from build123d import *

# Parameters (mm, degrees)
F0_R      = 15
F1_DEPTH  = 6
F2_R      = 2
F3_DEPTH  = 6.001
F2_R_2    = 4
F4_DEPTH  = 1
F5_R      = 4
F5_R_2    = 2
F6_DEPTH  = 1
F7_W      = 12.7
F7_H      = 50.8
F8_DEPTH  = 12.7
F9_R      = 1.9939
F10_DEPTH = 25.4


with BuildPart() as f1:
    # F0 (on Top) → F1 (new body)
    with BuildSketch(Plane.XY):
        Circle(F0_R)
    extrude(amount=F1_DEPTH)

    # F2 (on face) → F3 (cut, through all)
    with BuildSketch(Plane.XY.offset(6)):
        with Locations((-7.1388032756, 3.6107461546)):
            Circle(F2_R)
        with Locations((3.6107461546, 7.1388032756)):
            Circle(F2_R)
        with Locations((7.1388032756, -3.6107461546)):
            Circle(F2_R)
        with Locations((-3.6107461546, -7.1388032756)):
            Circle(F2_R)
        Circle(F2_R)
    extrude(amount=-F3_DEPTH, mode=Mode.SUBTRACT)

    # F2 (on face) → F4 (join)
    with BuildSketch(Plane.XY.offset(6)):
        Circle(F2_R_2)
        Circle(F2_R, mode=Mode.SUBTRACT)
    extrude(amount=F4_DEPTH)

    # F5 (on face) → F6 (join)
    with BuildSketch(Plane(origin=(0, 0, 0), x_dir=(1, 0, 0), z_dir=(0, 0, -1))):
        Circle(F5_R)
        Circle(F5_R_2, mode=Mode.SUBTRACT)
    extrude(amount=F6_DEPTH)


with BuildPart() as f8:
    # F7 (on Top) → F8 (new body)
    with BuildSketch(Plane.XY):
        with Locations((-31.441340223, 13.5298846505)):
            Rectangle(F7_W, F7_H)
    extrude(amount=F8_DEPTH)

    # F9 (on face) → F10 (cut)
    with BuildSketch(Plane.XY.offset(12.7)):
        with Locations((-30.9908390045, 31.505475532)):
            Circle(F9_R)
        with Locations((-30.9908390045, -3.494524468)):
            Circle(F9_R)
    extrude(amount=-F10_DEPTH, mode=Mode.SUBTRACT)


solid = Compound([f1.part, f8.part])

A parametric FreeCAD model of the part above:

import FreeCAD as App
import Part
import Sketcher

V = App.Vector
Q = App.Units.Quantity


def add_polygon(sketch, points):
    """Adds a closed chain of lines whose ends are joined by coincident constraints."""
    first, n = sketch.GeometryCount, len(points)
    for a, b in zip(points, points[1:] + points[:1]):
        sketch.addGeometry(Part.LineSegment(App.Vector(*a, 0), App.Vector(*b, 0)), False)
    for i in range(n):
        sketch.addConstraint(Sketcher.Constraint("Coincident", first + i, 2, first + (i + 1) % n, 1))

doc = App.newDocument("Part")
body = doc.addObject("PartDesign::Body", "Body")

sketch1 = body.newObject("Sketcher::SketchObject", "Sketch")
sketch1.AttachmentSupport = (doc.getObject("XY_Plane"), [""])
sketch1.MapMode = "FlatFace"
sketch1.addGeometry(Part.Circle(V(0, 0, 0), V(0, 0, 1), 15), False)
sketch1.addConstraint(Sketcher.Constraint("Coincident", 0, 3, -1, 1))
sketch1.addConstraint(Sketcher.Constraint("Diameter", 0, Q("30 mm")))
pad1 = body.newObject("PartDesign::Pad", "Pad")
pad1.Profile = sketch1
pad1.Length = 6

sketch2 = body.newObject("Sketcher::SketchObject", "Sketch001")
sketch2.AttachmentSupport = (doc.getObject("XY_Plane"), [""])
sketch2.MapMode = "FlatFace"
sketch2.AttachmentOffset = App.Placement(V(0, 0, 6), App.Rotation())
sketch2.addGeometry(Part.Circle(V(-7.1, 3.6, 0), V(0, 0, 1), 2), False)
sketch2.addGeometry(Part.Circle(V(3.6, 7.1, 0), V(0, 0, 1), 2), False)
sketch2.addGeometry(Part.Circle(V(7.1, -3.6, 0), V(0, 0, 1), 2), False)
sketch2.addGeometry(Part.Circle(V(-3.6, -7.1, 0), V(0, 0, 1), 2), False)
sketch2.addGeometry(Part.Circle(V(0, 0, 0), V(0, 0, 1), 2), False)
sketch2.addConstraint(Sketcher.Constraint("Coincident", 4, 3, -1, 1))
sketch2.addConstraint(Sketcher.Constraint("Equal", 0, 1))
sketch2.addConstraint(Sketcher.Constraint("Equal", 1, 2))
sketch2.addConstraint(Sketcher.Constraint("Equal", 2, 3))
sketch2.addConstraint(Sketcher.Constraint("Equal", 3, 4))
sketch2.addConstraint(Sketcher.Constraint("Symmetric", 0, 3, 2, 3, -1, 1))
sketch2.addConstraint(Sketcher.Constraint("Symmetric", 1, 3, 3, 3, -1, 1))
sketch2.addConstraint(Sketcher.Constraint("Diameter", 0, Q("4 mm")))
sketch2.addConstraint(Sketcher.Constraint("DistanceX", 0, 3, 1, 3, Q("10.749549 mm")))
sketch2.addConstraint(Sketcher.Constraint("DistanceY", 2, 3, 1, 3, Q("10.749549 mm")))
sketch2.addConstraint(Sketcher.Constraint("DistanceX", 0, 3, -1, 1, Q("7.138803 mm")))
sketch2.addConstraint(Sketcher.Constraint("DistanceY", -1, 1, 0, 3, Q("3.610746 mm")))
pocket1 = body.newObject("PartDesign::Pocket", "Pocket")
pocket1.Profile = sketch2
pocket1.Type = "ThroughAll"

sketch3 = body.newObject("Sketcher::SketchObject", "Sketch002")
sketch3.AttachmentSupport = (doc.getObject("XY_Plane"), [""])
sketch3.MapMode = "FlatFace"
sketch3.AttachmentOffset = App.Placement(V(0, 0, 6), App.Rotation())
sketch3.addGeometry(Part.Circle(V(0, 0, 0), V(0, 0, 1), 4), False)
sketch3.addGeometry(Part.Circle(V(0, 0, 0), V(0, 0, 1), 2), False)
sketch3.addConstraint(Sketcher.Constraint("Coincident", 0, 3, -1, 1))
sketch3.addConstraint(Sketcher.Constraint("Coincident", 1, 3, -1, 1))
sketch3.addConstraint(Sketcher.Constraint("Diameter", 0, Q("8 mm")))
sketch3.addConstraint(Sketcher.Constraint("Diameter", 1, Q("4 mm")))
pad2 = body.newObject("PartDesign::Pad", "Pad001")
pad2.Profile = sketch3
pad2.Length = 1

sketch4 = body.newObject("Sketcher::SketchObject", "Sketch003")
sketch4.AttachmentSupport = (doc.getObject("XY_Plane"), [""])
sketch4.MapMode = "FlatFace"
sketch4.addGeometry(Part.Circle(V(0, 0, 0), V(0, 0, 1), 4), False)
sketch4.addGeometry(Part.Circle(V(0, 0, 0), V(0, 0, 1), 2), False)
sketch4.addConstraint(Sketcher.Constraint("Coincident", 0, 3, -1, 1))
sketch4.addConstraint(Sketcher.Constraint("Coincident", 1, 3, -1, 1))
sketch4.addConstraint(Sketcher.Constraint("Diameter", 0, Q("8 mm")))
sketch4.addConstraint(Sketcher.Constraint("Diameter", 1, Q("4 mm")))
pad3 = body.newObject("PartDesign::Pad", "Pad002")
pad3.Profile = sketch4
pad3.Length = 1
pad3.Reversed = True
body2 = doc.addObject("PartDesign::Body", "Body001")

sketch5 = body2.newObject("Sketcher::SketchObject", "Sketch004")
sketch5.AttachmentSupport = (doc.getObject("XY_Plane001"), [""])
sketch5.MapMode = "FlatFace"
add_polygon(sketch5, [(-38, 39), (-38, -12), (-25, -12), (-25, 39)])
sketch5.addConstraint(Sketcher.Constraint("Vertical", 0))
sketch5.addConstraint(Sketcher.Constraint("Horizontal", 1))
sketch5.addConstraint(Sketcher.Constraint("Vertical", 2))
sketch5.addConstraint(Sketcher.Constraint("Horizontal", 3))
sketch5.addConstraint(Sketcher.Constraint("DistanceX", 1, 1, 1, 2, Q("12.7 mm")))
sketch5.addConstraint(Sketcher.Constraint("DistanceY", 0, 2, 0, 1, Q("50.8 mm")))
sketch5.addConstraint(Sketcher.Constraint("DistanceX", 0, 2, -1, 1, Q("37.79134 mm")))
sketch5.addConstraint(Sketcher.Constraint("DistanceY", 0, 2, -1, 1, Q("11.870115 mm")))
pad4 = body2.newObject("PartDesign::Pad", "Pad003")
pad4.Profile = sketch5
pad4.Length = 12.7

sketch6 = body2.newObject("Sketcher::SketchObject", "Sketch005")
sketch6.AttachmentSupport = (doc.getObject("XY_Plane001"), [""])
sketch6.MapMode = "FlatFace"
sketch6.AttachmentOffset = App.Placement(V(0, 0, 12.7), App.Rotation())
sketch6.addGeometry(Part.Circle(V(-31, 31.5, 0), V(0, 0, 1), 2), False)
sketch6.addGeometry(Part.Circle(V(-31, -3.5, 0), V(0, 0, 1), 2), False)
sketch6.addConstraint(Sketcher.Constraint("Equal", 0, 1))
sketch6.addConstraint(Sketcher.Constraint("Vertical", 0, 3, 1, 3))
sketch6.addConstraint(Sketcher.Constraint("DistanceY", 1, 3, 0, 3, Q("35 mm")))
sketch6.addConstraint(Sketcher.Constraint("Diameter", 0, Q("3.9878 mm")))
sketch6.addConstraint(Sketcher.Constraint("DistanceX", 0, 3, -1, 1, Q("30.990839 mm")))
sketch6.addConstraint(Sketcher.Constraint("DistanceY", -1, 1, 0, 3, Q("31.505476 mm")))
pocket2 = body2.newObject("PartDesign::Pocket", "Pocket001")
pocket2.Profile = sketch6
pocket2.Length = 25.4

doc.recompute()
